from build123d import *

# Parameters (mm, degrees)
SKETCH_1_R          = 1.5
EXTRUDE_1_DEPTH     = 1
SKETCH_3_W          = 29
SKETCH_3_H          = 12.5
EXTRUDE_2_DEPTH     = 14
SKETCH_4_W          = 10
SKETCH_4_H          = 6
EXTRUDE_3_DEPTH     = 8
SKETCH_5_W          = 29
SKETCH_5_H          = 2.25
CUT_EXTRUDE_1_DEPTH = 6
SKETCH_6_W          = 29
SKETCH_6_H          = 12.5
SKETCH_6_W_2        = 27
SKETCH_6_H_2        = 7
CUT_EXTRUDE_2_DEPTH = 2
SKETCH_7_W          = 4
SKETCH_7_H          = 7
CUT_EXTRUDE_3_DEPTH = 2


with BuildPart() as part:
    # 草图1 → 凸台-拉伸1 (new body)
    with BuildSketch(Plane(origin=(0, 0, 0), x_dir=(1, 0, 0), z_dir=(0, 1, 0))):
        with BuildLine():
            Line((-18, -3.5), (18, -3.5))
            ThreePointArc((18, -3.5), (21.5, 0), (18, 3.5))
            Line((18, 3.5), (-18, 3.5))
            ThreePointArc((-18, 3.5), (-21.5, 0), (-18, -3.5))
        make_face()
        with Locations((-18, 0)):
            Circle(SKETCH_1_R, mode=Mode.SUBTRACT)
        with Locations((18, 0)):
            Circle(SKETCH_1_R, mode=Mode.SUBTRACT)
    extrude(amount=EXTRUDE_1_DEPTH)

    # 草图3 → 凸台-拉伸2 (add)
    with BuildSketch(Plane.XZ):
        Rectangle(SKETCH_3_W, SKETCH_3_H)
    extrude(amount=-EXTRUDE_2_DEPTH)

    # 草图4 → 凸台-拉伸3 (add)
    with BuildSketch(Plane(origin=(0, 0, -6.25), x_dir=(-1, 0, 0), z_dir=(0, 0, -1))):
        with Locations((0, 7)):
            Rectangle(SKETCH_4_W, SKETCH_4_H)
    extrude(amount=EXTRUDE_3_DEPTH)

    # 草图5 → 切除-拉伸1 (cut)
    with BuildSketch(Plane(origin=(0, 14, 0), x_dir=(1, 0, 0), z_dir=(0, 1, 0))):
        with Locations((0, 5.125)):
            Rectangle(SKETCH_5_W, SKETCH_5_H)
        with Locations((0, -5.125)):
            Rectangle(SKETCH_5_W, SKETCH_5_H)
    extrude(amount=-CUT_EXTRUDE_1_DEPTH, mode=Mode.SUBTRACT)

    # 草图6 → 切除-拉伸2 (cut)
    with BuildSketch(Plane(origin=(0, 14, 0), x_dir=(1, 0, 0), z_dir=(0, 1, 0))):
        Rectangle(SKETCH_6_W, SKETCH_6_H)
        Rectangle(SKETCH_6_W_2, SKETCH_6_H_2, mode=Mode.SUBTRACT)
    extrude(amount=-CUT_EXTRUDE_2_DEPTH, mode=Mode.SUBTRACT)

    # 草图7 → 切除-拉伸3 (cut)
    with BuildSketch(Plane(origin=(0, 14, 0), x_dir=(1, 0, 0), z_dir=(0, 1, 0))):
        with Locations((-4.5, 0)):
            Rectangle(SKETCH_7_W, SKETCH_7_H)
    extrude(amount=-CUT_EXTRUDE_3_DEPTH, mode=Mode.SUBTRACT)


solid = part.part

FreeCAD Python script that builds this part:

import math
import FreeCAD as App
import Part
import Sketcher
Q = App.Units.Quantity

doc = App.newDocument("Part")
body = doc.addObject("PartDesign::Body", "Body")

# Sketch on XZ plane
sketch1 = body.newObject("Sketcher::SketchObject", "Sketch")
sketch1.AttachmentSupport = (doc.getObject("XZ_Plane"), [""])
sketch1.MapMode = "FlatFace"
sketch1.addGeometry([
    Part.LineSegment(App.Vector(-18, 3.5, 0), App.Vector(18, 3.5, 0)),  # 0
    Part.ArcOfCircle(Part.Circle(App.Vector(18, 0, 0), App.Vector(0, 0, 1), 3.5), math.radians(-90), math.radians(90)),  # 1
    Part.LineSegment(App.Vector(18, -3.5, 0), App.Vector(-18, -3.5, 0)),  # 2
    Part.ArcOfCircle(Part.Circle(App.Vector(-18, 0, 0), App.Vector(0, 0, 1), 3.5), math.radians(90), math.radians(270)),  # 3
    Part.Circle(App.Vector(-18, 0, 0), App.Vector(0, 0, 1), 1.5),  # 4
    Part.Circle(App.Vector(18, 0, 0), App.Vector(0, 0, 1), 1.5),  # 5
], False)
sketch1.addConstraint([
    Sketcher.Constraint("Tangent", 0, 2, 1, 2),
    Sketcher.Constraint("Tangent", 1, 1, 2, 1),
    Sketcher.Constraint("Tangent", 2, 2, 3, 2),
    Sketcher.Constraint("Tangent", 3, 1, 0, 1),
    Sketcher.Constraint("Horizontal", 0),
    Sketcher.Constraint("Horizontal", 2),
    Sketcher.Constraint("Coincident", 4, 3, 3, 3),
    Sketcher.Constraint("Coincident", 5, 3, 1, 3),
    Sketcher.Constraint("Equal", 4, 5),
    Sketcher.Constraint("Symmetric", 1, 3, 3, 3, -1, 1),
    Sketcher.Constraint("Diameter", 4, Q("3 mm")),
    Sketcher.Constraint("Radius", 1, Q("3.5 mm")),
    Sketcher.Constraint("DistanceX", 0, 1, 0, 2, Q("36 mm")),
])
pad1 = body.newObject("PartDesign::Pad", "Pad")
pad1.Profile = sketch1
pad1.Length = 1
pad1.Reversed = True

# Sketch on XZ plane
sketch2 = body.newObject("Sketcher::SketchObject", "Sketch001")
sketch2.AttachmentSupport = (doc.getObject("XZ_Plane"), [""])
sketch2.MapMode = "FlatFace"
sketch2.addGeometry([
    Part.LineSegment(App.Vector(-14.5, 6.25, 0), App.Vector(-14.5, -6.25, 0)),
    Part.LineSegment(App.Vector(-14.5, -6.25, 0), App.Vector(14.5, -6.25, 0)),
    Part.LineSegment(App.Vector(14.5, -6.25, 0), App.Vector(14.5, 6.25, 0)),
    Part.LineSegment(App.Vector(14.5, 6.25, 0), App.Vector(-14.5, 6.25, 0)),
], False)
sketch2.addConstraint([
    Sketcher.Constraint("Coincident", 0, 2, 1, 1),
    Sketcher.Constraint("Coincident", 1, 2, 2, 1),
    Sketcher.Constraint("Coincident", 2, 2, 3, 1),
    Sketcher.Constraint("Coincident", 3, 2, 0, 1),
    Sketcher.Constraint("Vertical", 0),
    Sketcher.Constraint("Horizontal", 1),
    Sketcher.Constraint("Vertical", 2),
    Sketcher.Constraint("Horizontal", 3),
    Sketcher.Constraint("Symmetric", 0, 2, 2, 2, -1, 1),
    Sketcher.Constraint("DistanceX", 1, 1, 1, 2, Q("29 mm")),
    Sketcher.Constraint("DistanceY", 0, 2, 0, 1, Q("12.5 mm")),
])
pad2 = body.newObject("PartDesign::Pad", "Pad001")
pad2.Profile = sketch2
pad2.Length = 14
pad2.Reversed = True

# Sketch on XY plane
sketch3 = body.newObject("Sketcher::SketchObject", "Sketch002")
sketch3.AttachmentSupport = (doc.getObject("XY_Plane"), [""])
sketch3.MapMode = "FlatFace"
sketch3.AttachmentOffset = App.Placement(App.Vector(0, 0, -6.25), App.Rotation())
sketch3.addGeometry([
    Part.LineSegment(App.Vector(5, 10, 0), App.Vector(5, 4, 0)),
    Part.LineSegment(App.Vector(5, 4, 0), App.Vector(-5, 4, 0)),
    Part.LineSegment(App.Vector(-5, 4, 0), App.Vector(-5, 10, 0)),
    Part.LineSegment(App.Vector(-5, 10, 0), App.Vector(5, 10, 0)),
], False)
sketch3.addConstraint([
    Sketcher.Constraint("Coincident", 0, 2, 1, 1),
    Sketcher.Constraint("Coincident", 1, 2, 2, 1),
    Sketcher.Constraint("Coincident", 2, 2, 3, 1),
    Sketcher.Constraint("Coincident", 3, 2, 0, 1),
    Sketcher.Constraint("Vertical", 0),
    Sketcher.Constraint("Horizontal", 1),
    Sketcher.Constraint("Vertical", 2),
    Sketcher.Constraint("Horizontal", 3),
    Sketcher.Constraint("DistanceX", 1, 2, 1, 1, Q("10 mm")),
    Sketcher.Constraint("DistanceY", 0, 2, 0, 1, Q("6 mm")),
    Sketcher.Constraint("DistanceX", -1, 1, 0, 2, Q("5 mm")),
    Sketcher.Constraint("DistanceY", -1, 1, 0, 2, Q("4 mm")),
])
pad3 = body.newObject("PartDesign::Pad", "Pad002")
pad3.Profile = sketch3
pad3.Length = 8
pad3.Reversed = True

# Sketch on XZ plane
sketch4 = body.newObject("Sketcher::SketchObject", "Sketch003")
sketch4.AttachmentSupport = (doc.getObject("XZ_Plane"), [""])
sketch4.MapMode = "FlatFace"
sketch4.AttachmentOffset = App.Placement(App.Vector(0, 0, -14), App.Rotation())
sketch4.addGeometry([
    Part.LineSegment(App.Vector(-14.5, -6.25, 0), App.Vector(-14.5, -4, 0)),  # 0
    Part.LineSegment(App.Vector(-14.5, -4, 0), App.Vector(14.5, -4, 0)),  # 1
    Part.LineSegment(App.Vector(14.5, -4, 0), App.Vector(14.5, -6.25, 0)),  # 2
    Part.LineSegment(App.Vector(14.5, -6.25, 0), App.Vector(-14.5, -6.25, 0)),  # 3
    Part.LineSegment(App.Vector(-14.5, 4, 0), App.Vector(-14.5, 6.25, 0)),  # 4
    Part.LineSegment(App.Vector(-14.5, 6.25, 0), App.Vector(14.5, 6.25, 0)),  # 5
    Part.LineSegment(App.Vector(14.5, 6.25, 0), App.Vector(14.5, 4, 0)),  # 6
    Part.LineSegment(App.Vector(14.5, 4, 0), App.Vector(-14.5, 4, 0)),  # 7
], False)
sketch4.addConstraint([
    Sketcher.Constraint("Coincident", 0, 2, 1, 1),
    Sketcher.Constraint("Coincident", 1, 2, 2, 1),
    Sketcher.Constraint("Coincident", 2, 2, 3, 1),
    Sketcher.Constraint("Coincident", 3, 2, 0, 1),
    Sketcher.Constraint("Coincident", 4, 2, 5, 1),
    Sketcher.Constraint("Coincident", 5, 2, 6, 1),
    Sketcher.Constraint("Coincident", 6, 2, 7, 1),
    Sketcher.Constraint("Coincident", 7, 2, 4, 1),
    Sketcher.Constraint("Vertical", 0),
    Sketcher.Constraint("Horizontal", 1),
    Sketcher.Constraint("Vertical", 2),
    Sketcher.Constraint("Horizontal", 3),
    Sketcher.Constraint("Vertical", 4),
    Sketcher.Constraint("Horizontal", 5),
    Sketcher.Constraint("Vertical", 6),
    Sketcher.Constraint("Horizontal", 7),
    Sketcher.Constraint("Symmetric", 2, 2, 4, 2, -1, 1),
    Sketcher.Constraint("Symmetric", 0, 2, 6, 2, -1, 1),
    Sketcher.Constraint("Vertical", 3, 2, 4, 2),
    Sketcher.Constraint("DistanceX", 1, 1, 1, 2, Q("29 mm")),
    Sketcher.Constraint("DistanceY", 0, 2, -1, 1, Q("4 mm")),
    Sketcher.Constraint("DistanceY", 0, 1, 0, 2, Q("2.25 mm")),
])
pocket1 = body.newObject("PartDesign::Pocket", "Pocket")
pocket1.Profile = sketch4
pocket1.Length = 6
pocket1.Reversed = True

# Sketch on XZ plane
sketch5 = body.newObject("Sketcher::SketchObject", "Sketch004")
sketch5.AttachmentSupport = (doc.getObject("XZ_Plane"), [""])
sketch5.MapMode = "FlatFace"
sketch5.AttachmentOffset = App.Placement(App.Vector(0, 0, -14), App.Rotation())
sketch5.addGeometry([
    Part.LineSegment(App.Vector(-14.5, -6.25, 0), App.Vector(-14.5, 6.25, 0)),  # 0
    Part.LineSegment(App.Vector(-14.5, 6.25, 0), App.Vector(14.5, 6.25, 0)),  # 1
    Part.LineSegment(App.Vector(14.5, 6.25, 0), App.Vector(14.5, -6.25, 0)),  # 2
    Part.LineSegment(App.Vector(14.5, -6.25, 0), App.Vector(-14.5, -6.25, 0)),  # 3
    Part.LineSegment(App.Vector(13.5, 3.5, 0), App.Vector(-13.5, 3.5, 0)),  # 4
    Part.LineSegment(App.Vector(-13.5, 3.5, 0), App.Vector(-13.5, -3.5, 0)),  # 5
    Part.LineSegment(App.Vector(-13.5, -3.5, 0), App.Vector(13.5, -3.5, 0)),  # 6
    Part.LineSegment(App.Vector(13.5, -3.5, 0), App.Vector(13.5, 3.5, 0)),  # 7
], False)
sketch5.addConstraint([
    Sketcher.Constraint("Coincident", 0, 2, 1, 1),
    Sketcher.Constraint("Coincident", 1, 2, 2, 1),
    Sketcher.Constraint("Coincident", 2, 2, 3, 1),
    Sketcher.Constraint("Coincident", 3, 2, 0, 1),
    Sketcher.Constraint("Coincident", 4, 2, 5, 1),
    Sketcher.Constraint("Coincident", 5, 2, 6, 1),
    Sketcher.Constraint("Coincident", 6, 2, 7, 1),
    Sketcher.Constraint("Coincident", 7, 2, 4, 1),
    Sketcher.Constraint("Vertical", 0),
    Sketcher.Constraint("Horizontal", 1),
    Sketcher.Constraint("Vertical", 2),
    Sketcher.Constraint("Horizontal", 3),
    Sketcher.Constraint("Horizontal", 4),
    Sketcher.Constraint("Vertical", 5),
    Sketcher.Constraint("Horizontal", 6),
    Sketcher.Constraint("Vertical", 7),
    Sketcher.Constraint("Symmetric", 0, 2, 2, 2, -1, 1),
    Sketcher.Constraint("Symmetric", 4, 2, 6, 2, -1, 1),
    Sketcher.Constraint("DistanceX", 1, 1, 1, 2, Q("29 mm")),
    Sketcher.Constraint("DistanceX", 4, 2, 4, 1, Q("27 mm")),
    Sketcher.Constraint("DistanceY", 5, 2, 5, 1, Q("7 mm")),
    Sketcher.Constraint("DistanceY", 0, 1, 0, 2, Q("12.5 mm")),
])
pocket2 = body.newObject("PartDesign::Pocket", "Pocket001")
pocket2.Profile = sketch5
pocket2.Length = 2
pocket2.Reversed = True

# Sketch on XZ plane
sketch6 = body.newObject("Sketcher::SketchObject", "Sketch005")
sketch6.AttachmentSupport = (doc.getObject("XZ_Plane"), [""])
sketch6.MapMode = "FlatFace"
sketch6.AttachmentOffset = App.Placement(App.Vector(0, 0, -14), App.Rotation())
sketch6.addGeometry([
    Part.LineSegment(App.Vector(-6.5, -3.5, 0), App.Vector(-6.5, 3.5, 0)),
    Part.LineSegment(App.Vector(-6.5, 3.5, 0), App.Vector(-2.5, 3.5, 0)),
    Part.LineSegment(App.Vector(-2.5, 3.5, 0), App.Vector(-2.5, -3.5, 0)),
    Part.LineSegment(App.Vector(-2.5, -3.5, 0), App.Vector(-6.5, -3.5, 0)),
], False)
sketch6.addConstraint([
    Sketcher.Constraint("Coincident", 0, 2, 1, 1),
    Sketcher.Constraint("Coincident", 1, 2, 2, 1),
    Sketcher.Constraint("Coincident", 2, 2, 3, 1),
    Sketcher.Constraint("Coincident", 3, 2, 0, 1),
    Sketcher.Constraint("Vertical", 0),
    Sketcher.Constraint("Horizontal", 1),
    Sketcher.Constraint("Vertical", 2),
    Sketcher.Constraint("Horizontal", 3),
    Sketcher.Constraint("DistanceX", 1, 1, 1, 2, Q("4 mm")),
    Sketcher.Constraint("DistanceY", 0, 1, 0, 2, Q("7 mm")),
    Sketcher.Constraint("DistanceX", 0, 2, -1, 1, Q("6.5 mm")),
    Sketcher.Constraint("DistanceY", -1, 1, 0, 2, Q("3.5 mm")),
])
pocket3 = body.newObject("PartDesign::Pocket", "Pocket002")
pocket3.Profile = sketch6
pocket3.Length = 2
pocket3.Reversed = True

doc.recompute()
